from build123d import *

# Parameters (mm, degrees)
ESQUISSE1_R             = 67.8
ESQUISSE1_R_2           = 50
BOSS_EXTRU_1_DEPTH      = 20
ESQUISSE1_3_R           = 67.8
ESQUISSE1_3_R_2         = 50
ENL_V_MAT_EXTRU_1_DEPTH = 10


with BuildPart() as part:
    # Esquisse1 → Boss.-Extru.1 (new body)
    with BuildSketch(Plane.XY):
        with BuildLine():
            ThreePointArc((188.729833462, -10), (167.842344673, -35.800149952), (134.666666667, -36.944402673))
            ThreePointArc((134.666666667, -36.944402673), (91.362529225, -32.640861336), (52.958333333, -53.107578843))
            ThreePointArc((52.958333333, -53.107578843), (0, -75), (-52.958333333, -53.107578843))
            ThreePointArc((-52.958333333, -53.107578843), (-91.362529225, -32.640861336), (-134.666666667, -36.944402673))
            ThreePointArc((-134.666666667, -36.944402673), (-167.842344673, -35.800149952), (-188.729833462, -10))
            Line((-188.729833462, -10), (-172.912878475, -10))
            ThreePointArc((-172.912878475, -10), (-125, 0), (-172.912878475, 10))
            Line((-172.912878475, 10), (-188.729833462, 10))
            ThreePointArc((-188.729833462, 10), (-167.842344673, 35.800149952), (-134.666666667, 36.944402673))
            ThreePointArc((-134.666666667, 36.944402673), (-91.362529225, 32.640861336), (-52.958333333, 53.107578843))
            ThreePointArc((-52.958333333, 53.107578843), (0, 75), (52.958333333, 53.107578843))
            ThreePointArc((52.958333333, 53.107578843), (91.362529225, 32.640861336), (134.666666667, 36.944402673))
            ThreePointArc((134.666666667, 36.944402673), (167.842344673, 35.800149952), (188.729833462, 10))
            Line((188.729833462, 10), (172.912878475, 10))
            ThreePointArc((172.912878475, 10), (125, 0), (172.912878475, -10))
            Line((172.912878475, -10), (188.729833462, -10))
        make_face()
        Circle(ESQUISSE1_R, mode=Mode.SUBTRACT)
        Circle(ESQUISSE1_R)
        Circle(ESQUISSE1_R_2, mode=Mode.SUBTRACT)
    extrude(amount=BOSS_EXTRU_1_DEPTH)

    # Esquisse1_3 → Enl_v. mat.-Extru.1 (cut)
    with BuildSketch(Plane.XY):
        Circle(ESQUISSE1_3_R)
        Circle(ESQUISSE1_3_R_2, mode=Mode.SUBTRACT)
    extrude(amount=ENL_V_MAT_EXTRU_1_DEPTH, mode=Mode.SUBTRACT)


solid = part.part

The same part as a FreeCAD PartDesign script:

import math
import FreeCAD as App
import Part
import Sketcher
from FreeCAD import Vector

doc = App.newDocument("Part")
body = doc.addObject("PartDesign::Body", "Body")

sketch1 = body.newObject("Sketcher::SketchObject", "Sketch")
sketch1.AttachmentSupport = (doc.getObject("XY_Plane"), [""])
sketch1.MapMode = "FlatFace"
sketch1.addGeometry([
    Part.ArcOfCircle(Part.Circle(Vector(150, 0, 0), Vector(0, 0, 1), 40), math.radians(-112.54031), math.radians(-14.477512)),
    Part.LineSegment(Vector(188.729833, -10, 0), Vector(172.912878, -10, 0)),
    Part.ArcOfCircle(Part.Circle(Vector(150, 0, 0), Vector(0, 0, 1), 25), math.radians(23.578178), math.radians(336.421822)),
    Part.LineSegment(Vector(172.912878, 10, 0), Vector(188.729833, 10, 0)),
    Part.ArcOfCircle(Part.Circle(Vector(150, 0, 0), Vector(0, 0, 1), 40), math.radians(14.477512), math.radians(112.54031)),
    Part.ArcOfCircle(Part.Circle(Vector(105.916667, 106.215158, 0), Vector(0, 0, 1), 75), math.radians(-134.919379), math.radians(-67.45969)),
    Part.ArcOfCircle(Part.Circle(Vector(0, 0, 0), Vector(0, 0, 1), 75), math.radians(45.080621), math.radians(134.919379)),
    Part.ArcOfCircle(Part.Circle(Vector(-105.916667, 106.215158, 0), Vector(0, 0, 1), 75), math.radians(-112.54031), math.radians(-45.080621)),
    Part.ArcOfCircle(Part.Circle(Vector(-150, 0, 0), Vector(0, 0, 1), 40), math.radians(67.45969), math.radians(165.522488)),
    Part.LineSegment(Vector(-188.729833, 10, 0), Vector(-172.912878, 10, 0)),
    Part.ArcOfCircle(Part.Circle(Vector(-150, 0, 0), Vector(0, 0, 1), 25), math.radians(-156.421822), math.radians(156.421822)),
    Part.LineSegment(Vector(-172.912878, -10, 0), Vector(-188.729833, -10, 0)),
    Part.ArcOfCircle(Part.Circle(Vector(-150, 0, 0), Vector(0, 0, 1), 40), math.radians(-165.522488), math.radians(-67.45969)),
    Part.ArcOfCircle(Part.Circle(Vector(-105.916667, -106.215158, 0), Vector(0, 0, 1), 75), math.radians(45.080621), math.radians(112.54031)),
    Part.ArcOfCircle(Part.Circle(Vector(0, 0, 0), Vector(0, 0, 1), 75), math.radians(-134.919379), math.radians(-45.080621)),
    Part.ArcOfCircle(Part.Circle(Vector(105.916667, -106.215158, 0), Vector(0, 0, 1), 75), math.radians(67.45969), math.radians(134.919379)),
    Part.Circle(Vector(0, 0, 0), Vector(0, 0, 1), 50),
], False)
sketch1.addConstraint([
    Sketcher.Constraint("Coincident", 0, 2, 1, 1),
    Sketcher.Constraint("Coincident", 1, 2, 2, 2),
    Sketcher.Constraint("Coincident", 2, 1, 3, 1),
    Sketcher.Constraint("Coincident", 3, 2, 4, 1),
    Sketcher.Constraint("Tangent", 4, 2, 5, 2),
    Sketcher.Constraint("Tangent", 5, 1, 6, 1),
    Sketcher.Constraint("Tangent", 6, 2, 7, 2),
    Sketcher.Constraint("Tangent", 7, 1, 8, 1),
    Sketcher.Constraint("Coincident", 8, 2, 9, 1),
    Sketcher.Constraint("Coincident", 9, 2, 10, 2),
    Sketcher.Constraint("Coincident", 10, 1, 11, 1),
    Sketcher.Constraint("Coincident", 11, 2, 12, 1),
    Sketcher.Constraint("Tangent", 12, 2, 13, 2),
    Sketcher.Constraint("Tangent", 13, 1, 14, 1),
    Sketcher.Constraint("Tangent", 14, 2, 15, 2),
    Sketcher.Constraint("Tangent", 15, 1, 0, 1),
    Sketcher.Constraint("Horizontal", 1),
    Sketcher.Constraint("Horizontal", 3),
    Sketcher.Constraint("Horizontal", 9),
    Sketcher.Constraint("Horizontal", 11),
    Sketcher.Constraint("Coincident", 6, 3, -1, 1),
    Sketcher.Constraint("Coincident", 14, 3, -1, 1),
    Sketcher.Constraint("Coincident", 16, 3, -1, 1),
    Sketcher.Constraint("Coincident", 2, 3, 0, 3),
    Sketcher.Constraint("Coincident", 4, 3, 0, 3),
    Sketcher.Constraint("Coincident", 10, 3, 8, 3),
    Sketcher.Constraint("Coincident", 12, 3, 8, 3),
    Sketcher.Constraint("Equal", 0, 4),
    Sketcher.Constraint("Equal", 5, 6),
    Sketcher.Constraint("Equal", 6, 7),
    Sketcher.Constraint("Equal", 4, 8),
    Sketcher.Constraint("Equal", 2, 10),
    Sketcher.Constraint("Equal", 8, 12),
    Sketcher.Constraint("Equal", 7, 13),
    Sketcher.Constraint("Equal", 13, 14),
    Sketcher.Constraint("Equal", 14, 15),
    Sketcher.Constraint("Symmetric", 0, 3, 8, 3, -1, 1),
    Sketcher.Constraint("Symmetric", 3, 2, 8, 2, -2),
    Sketcher.Constraint("Horizontal", 1, 2, 10, 1),
    Sketcher.Constraint("Vertical", 1, 2, 2, 1),
    Sketcher.Constraint("Diameter", 16, 100.0),
    Sketcher.Constraint("Radius", 0, 40.0),
    Sketcher.Constraint("Radius", 2, 25.0),
    Sketcher.Constraint("Radius", 5, 75.0),
    Sketcher.Constraint("DistanceX", -1, 1, 0, 3, 150.0),
    Sketcher.Constraint("DistanceY", 0, 2, -1, 1, 10.0),
])
pad1 = body.newObject("PartDesign::Pad", "Pad")
pad1.Profile = sketch1
pad1.Length = 20

sketch2 = body.newObject("Sketcher::SketchObject", "Sketch001")
sketch2.AttachmentSupport = (doc.getObject("XY_Plane"), [""])
sketch2.MapMode = "FlatFace"
sketch2.addGeometry([
    Part.Circle(Vector(0, 0, 0), Vector(0, 0, 1), 67.8),
    Part.Circle(Vector(0, 0, 0), Vector(0, 0, 1), 50),
], False)
sketch2.addConstraint([
    Sketcher.Constraint("Coincident", 0, 3, -1, 1),
    Sketcher.Constraint("Coincident", 1, 3, -1, 1),
    Sketcher.Constraint("Diameter", 1, 100.0),
    Sketcher.Constraint("Diameter", 0, 135.6),
])
pocket1 = body.newObject("PartDesign::Pocket", "Pocket")
pocket1.Profile = sketch2
pocket1.Length = 10
pocket1.Reversed = True

doc.recompute()
